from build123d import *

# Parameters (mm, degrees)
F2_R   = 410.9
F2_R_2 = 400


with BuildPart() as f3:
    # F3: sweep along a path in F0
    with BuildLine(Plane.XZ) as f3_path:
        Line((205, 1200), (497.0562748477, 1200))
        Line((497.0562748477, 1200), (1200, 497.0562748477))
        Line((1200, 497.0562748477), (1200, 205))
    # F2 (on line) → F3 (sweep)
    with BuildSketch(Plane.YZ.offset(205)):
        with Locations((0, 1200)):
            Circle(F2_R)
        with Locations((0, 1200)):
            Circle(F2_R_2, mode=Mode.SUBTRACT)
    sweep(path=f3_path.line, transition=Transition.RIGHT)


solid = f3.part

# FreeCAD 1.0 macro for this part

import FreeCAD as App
import Part
import Sketcher

V = App.Vector
Q = App.Units.Quantity

doc = App.newDocument("Part")
body = doc.addObject("PartDesign::Body", "Body")

sketch1 = body.newObject("Sketcher::SketchObject", "Sketch")
sketch1.AttachmentSupport = (doc.getObject("YZ_Plane"), [""])
sketch1.MapMode = "FlatFace"
sketch1.AttachmentOffset = App.Placement(V(0, 0, 205), App.Rotation())
sketch1.addGeometry(Part.Circle(V(0, 1200, 0), V(0, 0, 1), 411), False)
sketch1.addGeometry(Part.Circle(V(0, 1200, 0), V(0, 0, 1), 400), False)
sketch1.addConstraint(Sketcher.Constraint("Coincident", 1, 3, 0, 3))
sketch1.addConstraint(Sketcher.Constraint("PointOnObject", 0, 3, -2))
sketch1.addConstraint(Sketcher.Constraint("Diameter", 1, 800.0))
sketch1.addConstraint(Sketcher.Constraint("Diameter", 0, 821.8))
sketch1.addConstraint(Sketcher.Constraint("DistanceY", -1, 1, 0, 3, 1200.0))

sketch2 = body.newObject("Sketcher::SketchObject", "Sketch001")
sketch2.AttachmentSupport = (doc.getObject("XZ_Plane"), [""])
sketch2.MapMode = "FlatFace"
sketch2.addGeometry(Part.LineSegment(V(205, 1200, 0), V(497, 1200, 0)), False)
sketch2.addGeometry(Part.LineSegment(V(497, 1200, 0), V(1200, 497, 0)), False)
sketch2.addGeometry(Part.LineSegment(V(1200, 497, 0), V(1200, 205, 0)), False)
sketch2.addConstraint(Sketcher.Constraint("Coincident", 0, 2, 1, 1))
sketch2.addConstraint(Sketcher.Constraint("Coincident", 1, 2, 2, 1))
sketch2.addConstraint(Sketcher.Constraint("Horizontal", 0))
sketch2.addConstraint(Sketcher.Constraint("Vertical", 2))
sketch2.addConstraint(Sketcher.Constraint("Equal", 0, 2))
sketch2.addConstraint(Sketcher.Constraint("Angle", 1, Q("-45 deg")))
sketch2.addConstraint(Sketcher.Constraint("DistanceX", -1, 1, 0, 1, 205.0))
sketch2.addConstraint(Sketcher.Constraint("DistanceY", -1, 1, 0, 1, 1200.0))
sketch2.addConstraint(Sketcher.Constraint("DistanceX", -1, 1, 1, 2, 1200.0))
sketch2.addConstraint(Sketcher.Constraint("Distance", 1, 994.11255))
doc.recompute()

additivepipe = body.newObject("PartDesign::AdditivePipe", "AdditivePipe")
additivepipe.Profile = sketch1
additivepipe.Spine = (sketch2, ["Edge1", "Edge2", "Edge3"])
additivepipe.Transition = "Right corner"

doc.recompute()
